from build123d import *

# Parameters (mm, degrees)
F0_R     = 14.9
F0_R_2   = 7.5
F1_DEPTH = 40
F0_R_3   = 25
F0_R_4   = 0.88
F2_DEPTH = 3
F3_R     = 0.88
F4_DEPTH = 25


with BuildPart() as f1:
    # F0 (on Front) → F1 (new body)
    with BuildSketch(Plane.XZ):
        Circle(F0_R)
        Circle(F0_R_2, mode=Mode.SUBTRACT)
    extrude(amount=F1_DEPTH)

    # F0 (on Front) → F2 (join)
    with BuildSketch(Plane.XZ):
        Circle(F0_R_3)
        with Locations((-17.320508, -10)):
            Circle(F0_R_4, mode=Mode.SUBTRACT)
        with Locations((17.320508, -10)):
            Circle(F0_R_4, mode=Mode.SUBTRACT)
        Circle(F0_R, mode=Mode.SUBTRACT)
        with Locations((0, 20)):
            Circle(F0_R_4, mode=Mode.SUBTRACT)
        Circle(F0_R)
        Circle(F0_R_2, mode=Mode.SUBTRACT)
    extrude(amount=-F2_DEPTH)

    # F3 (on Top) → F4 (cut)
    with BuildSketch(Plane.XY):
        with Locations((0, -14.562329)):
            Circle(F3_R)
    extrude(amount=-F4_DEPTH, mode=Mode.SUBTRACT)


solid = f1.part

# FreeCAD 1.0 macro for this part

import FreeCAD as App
import Part
import Sketcher
from FreeCAD import Vector
Q = App.Units.Quantity

doc = App.newDocument("Part")
body = doc.addObject("PartDesign::Body", "Body")

# Sketch on XZ plane
sketch1 = body.newObject("Sketcher::SketchObject", "Sketch")
sketch1.AttachmentSupport = (doc.getObject("XZ_Plane"), [""])
sketch1.MapMode = "FlatFace"
sketch1.addGeometry([
    Part.Circle(Vector(0, 0, 0), Vector(0, 0, 1), 15),
    Part.Circle(Vector(0, 0, 0), Vector(0, 0, 1), 8),
], False)
sketch1.addConstraint([
    Sketcher.Constraint("Coincident", 0, 3, -1, 1),
    Sketcher.Constraint("Coincident", 1, 3, -1, 1),
    Sketcher.Constraint("Diameter", 1, Q("15 mm")),
    Sketcher.Constraint("Diameter", 0, Q("29.8 mm")),
])
pad1 = body.newObject("PartDesign::Pad", "Pad")
pad1.Profile = sketch1
pad1.Length = 40

# Sketch on XZ plane
sketch2 = body.newObject("Sketcher::SketchObject", "Sketch001")
sketch2.AttachmentSupport = (doc.getObject("XZ_Plane"), [""])
sketch2.MapMode = "FlatFace"
sketch2.addGeometry([
    Part.Circle(Vector(0, 0, 0), Vector(0, 0, 1), 25),  # 0
    Part.Circle(Vector(-17.3, -10, 0), Vector(0, 0, 1), 0.9),  # 1
    Part.Circle(Vector(17.3, -10, 0), Vector(0, 0, 1), 0.9),  # 2
    Part.Circle(Vector(0, 0, 0), Vector(0, 0, 1), 7.5),  # 3
    Part.Circle(Vector(0, 20, 0), Vector(0, 0, 1), 0.9),  # 4
], False)
sketch2.addConstraint([
    Sketcher.Constraint("Coincident", 0, 3, -1, 1),
    Sketcher.Constraint("Coincident", 3, 3, -1, 1),
    Sketcher.Constraint("Equal", 1, 2),
    Sketcher.Constraint("Equal", 2, 4),
    Sketcher.Constraint("Symmetric", 1, 3, 2, 3, -2),
    Sketcher.Constraint("PointOnObject", 4, 3, -2),
    Sketcher.Constraint("Diameter", 0, Q("50 mm")),
    Sketcher.Constraint("Diameter", 3, Q("15 mm")),
    Sketcher.Constraint("Diameter", 1, Q("1.76 mm")),
    Sketcher.Constraint("DistanceY", 1, 3, -1, 1, Q("10 mm")),
    Sketcher.Constraint("DistanceY", -1, 1, 4, 3, Q("20 mm")),
    Sketcher.Constraint("DistanceX", 1, 3, -1, 1, Q("17.320508 mm")),
])
pad2 = body.newObject("PartDesign::Pad", "Pad001")
pad2.Profile = sketch2
pad2.Length = 3
pad2.Reversed = True

# Sketch on XY plane
sketch3 = body.newObject("Sketcher::SketchObject", "Sketch002")
sketch3.AttachmentSupport = (doc.getObject("XY_Plane"), [""])
sketch3.MapMode = "FlatFace"
sketch3.addGeometry(Part.Circle(Vector(0, -14.6, 0), Vector(0, 0, 1), 0.9), False)
sketch3.addConstraint([
    Sketcher.Constraint("PointOnObject", 0, 3, -2),
    Sketcher.Constraint("Diameter", 0, Q("1.76 mm")),
    Sketcher.Constraint("DistanceY", 0, 3, -1, 1, Q("14.562329 mm")),
])
pocket1 = body.newObject("PartDesign::Pocket", "Pocket")
pocket1.Profile = sketch3
pocket1.Length = 25

doc.recompute()
